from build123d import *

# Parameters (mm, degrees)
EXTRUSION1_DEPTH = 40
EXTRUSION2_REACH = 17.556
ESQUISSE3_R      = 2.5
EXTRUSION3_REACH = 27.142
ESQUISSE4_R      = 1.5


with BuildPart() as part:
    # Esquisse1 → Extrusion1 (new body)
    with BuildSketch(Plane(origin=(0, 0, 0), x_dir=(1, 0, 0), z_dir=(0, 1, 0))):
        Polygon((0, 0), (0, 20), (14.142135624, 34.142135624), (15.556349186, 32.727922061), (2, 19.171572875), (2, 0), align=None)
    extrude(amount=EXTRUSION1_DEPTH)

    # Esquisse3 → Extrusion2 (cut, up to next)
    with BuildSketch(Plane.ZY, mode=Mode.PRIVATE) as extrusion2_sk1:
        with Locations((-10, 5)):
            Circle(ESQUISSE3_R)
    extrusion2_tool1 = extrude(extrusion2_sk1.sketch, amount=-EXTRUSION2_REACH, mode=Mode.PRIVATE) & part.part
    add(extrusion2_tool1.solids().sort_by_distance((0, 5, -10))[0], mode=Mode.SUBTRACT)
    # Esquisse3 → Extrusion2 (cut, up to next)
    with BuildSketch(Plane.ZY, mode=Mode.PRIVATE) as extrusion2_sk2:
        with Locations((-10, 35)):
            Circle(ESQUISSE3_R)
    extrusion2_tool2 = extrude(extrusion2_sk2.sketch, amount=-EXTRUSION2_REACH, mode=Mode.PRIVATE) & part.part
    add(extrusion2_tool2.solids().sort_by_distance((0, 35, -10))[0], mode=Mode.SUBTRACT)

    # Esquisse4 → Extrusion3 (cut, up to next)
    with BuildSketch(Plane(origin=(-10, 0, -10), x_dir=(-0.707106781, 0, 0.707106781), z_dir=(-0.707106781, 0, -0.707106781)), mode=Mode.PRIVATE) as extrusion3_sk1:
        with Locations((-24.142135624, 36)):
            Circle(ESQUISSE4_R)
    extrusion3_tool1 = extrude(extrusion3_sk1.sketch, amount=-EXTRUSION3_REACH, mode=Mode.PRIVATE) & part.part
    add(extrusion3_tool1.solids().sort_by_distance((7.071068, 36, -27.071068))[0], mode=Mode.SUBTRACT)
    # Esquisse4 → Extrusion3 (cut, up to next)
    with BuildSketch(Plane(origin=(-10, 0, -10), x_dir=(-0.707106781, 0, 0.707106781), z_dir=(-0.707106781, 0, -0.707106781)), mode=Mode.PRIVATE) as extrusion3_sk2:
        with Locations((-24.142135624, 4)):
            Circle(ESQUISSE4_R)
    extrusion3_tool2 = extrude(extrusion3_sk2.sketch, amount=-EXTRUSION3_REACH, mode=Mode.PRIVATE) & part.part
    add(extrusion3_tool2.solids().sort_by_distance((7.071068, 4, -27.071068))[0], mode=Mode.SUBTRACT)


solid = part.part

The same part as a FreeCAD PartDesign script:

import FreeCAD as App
import Part
import Sketcher
Q = App.Units.Quantity


def add_polygon(sketch, points):
    """Adds a closed chain of lines whose ends are joined by coincident constraints."""
    first, n = sketch.GeometryCount, len(points)
    for a, b in zip(points, points[1:] + points[:1]):
        sketch.addGeometry(Part.LineSegment(App.Vector(*a, 0), App.Vector(*b, 0)), False)
    for i in range(n):
        sketch.addConstraint(Sketcher.Constraint("Coincident", first + i, 2, first + (i + 1) % n, 1))

doc = App.newDocument("Part")
params = doc.addObject("Spreadsheet::Sheet", "Params")
for row, (alias, value) in enumerate([
    ("sketch1_width", "2 mm"),
    ("sketch1_height", "20 mm"),
    ("sketch1_length", "2 mm"),
    ("sketch1_length2", "20 mm"),
    ("pad1_length", "40 mm"),
    ("sketch2_diameter", "5 mm"),
    ("sketch3_diameter", "5 mm"),
    ("sketch4_diameter", "3 mm"),
    ("sketch5_diameter", "3 mm"),
], start=1):
    params.set(f"A{row}", alias)
    params.set(f"B{row}", "=" + value)
    params.setAlias(f"B{row}", alias)

body = doc.addObject("PartDesign::Body", "Body")

sketch1 = body.newObject("Sketcher::SketchObject", "Sketch")
sketch1.AttachmentSupport = (doc.getObject("XZ_Plane"), [""])
sketch1.MapMode = "FlatFace"
add_polygon(sketch1, [(0, -20), (0, 0), (2, 0), (2, -19.2), (15.6, -32.7), (14.1, -34.1)])
sketch1.addConstraint([
    Sketcher.Constraint("Vertical", 0),
    Sketcher.Constraint("Horizontal", 1),
    Sketcher.Constraint("Vertical", 2),
    Sketcher.Constraint("Coincident", 0, 2, -1, 1),
    Sketcher.Constraint("Perpendicular", 3, 4),
    Sketcher.Constraint("Perpendicular", 4, 5),
    Sketcher.Constraint("DistanceX", 1, 1, 1, 2, 2.0),
    Sketcher.Constraint("DistanceY", 0, 1, 0, 2, 20.0),
    Sketcher.Constraint("Angle", 3, Q("-45 deg")),
    Sketcher.Constraint("Distance", 4, 2.0),
    Sketcher.Constraint("Distance", 5, 20.0),
])
sketch1.setExpression("Constraints[12]", "Params.sketch1_width")
sketch1.setExpression("Constraints[13]", "Params.sketch1_height")
sketch1.setExpression("Constraints[15]", "Params.sketch1_length")
sketch1.setExpression("Constraints[16]", "Params.sketch1_length2")
pad1 = body.newObject("PartDesign::Pad", "Pad")
pad1.Profile = sketch1
pad1.setExpression("Length", "Params.pad1_length")
pad1.Reversed = True

sketch2 = body.newObject("Sketcher::SketchObject", "Sketch001")
sketch2.AttachmentSupport = (doc.getObject("YZ_Plane"), [""])
sketch2.MapMode = "FlatFace"
sketch2.addGeometry(Part.Circle(App.Vector(5, -10, 0), App.Vector(0, 0, 1), 2.5), False)
sketch2.addConstraint([
    Sketcher.Constraint("Diameter", 0, 5.0),
    Sketcher.Constraint("DistanceX", -1, 1, 0, 3, 5.0),
    Sketcher.Constraint("DistanceY", 0, 3, -1, 1, 10.0),
])
sketch2.setExpression("Constraints[0]", "Params.sketch2_diameter")
pocket1 = body.newObject("PartDesign::Pocket", "Pocket")
pocket1.Profile = sketch2
pocket1.Type = "UpToFirst"
pocket1.Reversed = True

sketch3 = body.newObject("Sketcher::SketchObject", "Sketch002")
sketch3.AttachmentSupport = (doc.getObject("YZ_Plane"), [""])
sketch3.MapMode = "FlatFace"
sketch3.addGeometry(Part.Circle(App.Vector(35, -10, 0), App.Vector(0, 0, 1), 2.5), False)
sketch3.addConstraint([
    Sketcher.Constraint("Diameter", 0, 5.0),
    Sketcher.Constraint("DistanceX", -1, 1, 0, 3, 35.0),
    Sketcher.Constraint("DistanceY", 0, 3, -1, 1, 10.0),
])
sketch3.setExpression("Constraints[0]", "Params.sketch3_diameter")
pocket2 = body.newObject("PartDesign::Pocket", "Pocket001")
pocket2.Profile = sketch3
pocket2.Type = "UpToFirst"
pocket2.Reversed = True

sketch4 = body.newObject("Sketcher::SketchObject", "Sketch003")
sketch4.Placement = App.Placement(App.Vector(-10, 0, -10), App.Rotation(App.Vector(-0.707106781, 0, 0.707106781), App.Vector(0, 0.999999999, 0), App.Vector(-0.707106781, 0, -0.707106781), "ZXY"))
sketch4.addGeometry(Part.Circle(App.Vector(-24.1, 36, 0), App.Vector(0, 0, 1), 1.5), False)
sketch4.addConstraint([
    Sketcher.Constraint("Diameter", 0, 3.0),
    Sketcher.Constraint("DistanceY", -1, 1, 0, 3, 36.0),
    Sketcher.Constraint("DistanceX", 0, 3, -1, 1, 24.142136),
])
sketch4.setExpression("Constraints[0]", "Params.sketch4_diameter")
pocket3 = body.newObject("PartDesign::Pocket", "Pocket002")
pocket3.Profile = sketch4
pocket3.Type = "UpToFirst"

sketch5 = body.newObject("Sketcher::SketchObject", "Sketch004")
sketch5.Placement = App.Placement(App.Vector(-10, 0, -10), App.Rotation(App.Vector(-0.707106781, 0, 0.707106781), App.Vector(0, 0.999999999, 0), App.Vector(-0.707106781, 0, -0.707106781), "ZXY"))
sketch5.addGeometry(Part.Circle(App.Vector(-24.1, 4, 0), App.Vector(0, 0, 1), 1.5), False)
sketch5.addConstraint([
    Sketcher.Constraint("Diameter", 0, 3.0),
    Sketcher.Constraint("DistanceY", -1, 1, 0, 3, 4.0),
    Sketcher.Constraint("DistanceX", 0, 3, -1, 1, 24.142136),
])
sketch5.setExpression("Constraints[0]", "Params.sketch5_diameter")
pocket4 = body.newObject("PartDesign::Pocket", "Pocket003")
pocket4.Profile = sketch5
pocket4.Type = "UpToFirst"

doc.recompute()
